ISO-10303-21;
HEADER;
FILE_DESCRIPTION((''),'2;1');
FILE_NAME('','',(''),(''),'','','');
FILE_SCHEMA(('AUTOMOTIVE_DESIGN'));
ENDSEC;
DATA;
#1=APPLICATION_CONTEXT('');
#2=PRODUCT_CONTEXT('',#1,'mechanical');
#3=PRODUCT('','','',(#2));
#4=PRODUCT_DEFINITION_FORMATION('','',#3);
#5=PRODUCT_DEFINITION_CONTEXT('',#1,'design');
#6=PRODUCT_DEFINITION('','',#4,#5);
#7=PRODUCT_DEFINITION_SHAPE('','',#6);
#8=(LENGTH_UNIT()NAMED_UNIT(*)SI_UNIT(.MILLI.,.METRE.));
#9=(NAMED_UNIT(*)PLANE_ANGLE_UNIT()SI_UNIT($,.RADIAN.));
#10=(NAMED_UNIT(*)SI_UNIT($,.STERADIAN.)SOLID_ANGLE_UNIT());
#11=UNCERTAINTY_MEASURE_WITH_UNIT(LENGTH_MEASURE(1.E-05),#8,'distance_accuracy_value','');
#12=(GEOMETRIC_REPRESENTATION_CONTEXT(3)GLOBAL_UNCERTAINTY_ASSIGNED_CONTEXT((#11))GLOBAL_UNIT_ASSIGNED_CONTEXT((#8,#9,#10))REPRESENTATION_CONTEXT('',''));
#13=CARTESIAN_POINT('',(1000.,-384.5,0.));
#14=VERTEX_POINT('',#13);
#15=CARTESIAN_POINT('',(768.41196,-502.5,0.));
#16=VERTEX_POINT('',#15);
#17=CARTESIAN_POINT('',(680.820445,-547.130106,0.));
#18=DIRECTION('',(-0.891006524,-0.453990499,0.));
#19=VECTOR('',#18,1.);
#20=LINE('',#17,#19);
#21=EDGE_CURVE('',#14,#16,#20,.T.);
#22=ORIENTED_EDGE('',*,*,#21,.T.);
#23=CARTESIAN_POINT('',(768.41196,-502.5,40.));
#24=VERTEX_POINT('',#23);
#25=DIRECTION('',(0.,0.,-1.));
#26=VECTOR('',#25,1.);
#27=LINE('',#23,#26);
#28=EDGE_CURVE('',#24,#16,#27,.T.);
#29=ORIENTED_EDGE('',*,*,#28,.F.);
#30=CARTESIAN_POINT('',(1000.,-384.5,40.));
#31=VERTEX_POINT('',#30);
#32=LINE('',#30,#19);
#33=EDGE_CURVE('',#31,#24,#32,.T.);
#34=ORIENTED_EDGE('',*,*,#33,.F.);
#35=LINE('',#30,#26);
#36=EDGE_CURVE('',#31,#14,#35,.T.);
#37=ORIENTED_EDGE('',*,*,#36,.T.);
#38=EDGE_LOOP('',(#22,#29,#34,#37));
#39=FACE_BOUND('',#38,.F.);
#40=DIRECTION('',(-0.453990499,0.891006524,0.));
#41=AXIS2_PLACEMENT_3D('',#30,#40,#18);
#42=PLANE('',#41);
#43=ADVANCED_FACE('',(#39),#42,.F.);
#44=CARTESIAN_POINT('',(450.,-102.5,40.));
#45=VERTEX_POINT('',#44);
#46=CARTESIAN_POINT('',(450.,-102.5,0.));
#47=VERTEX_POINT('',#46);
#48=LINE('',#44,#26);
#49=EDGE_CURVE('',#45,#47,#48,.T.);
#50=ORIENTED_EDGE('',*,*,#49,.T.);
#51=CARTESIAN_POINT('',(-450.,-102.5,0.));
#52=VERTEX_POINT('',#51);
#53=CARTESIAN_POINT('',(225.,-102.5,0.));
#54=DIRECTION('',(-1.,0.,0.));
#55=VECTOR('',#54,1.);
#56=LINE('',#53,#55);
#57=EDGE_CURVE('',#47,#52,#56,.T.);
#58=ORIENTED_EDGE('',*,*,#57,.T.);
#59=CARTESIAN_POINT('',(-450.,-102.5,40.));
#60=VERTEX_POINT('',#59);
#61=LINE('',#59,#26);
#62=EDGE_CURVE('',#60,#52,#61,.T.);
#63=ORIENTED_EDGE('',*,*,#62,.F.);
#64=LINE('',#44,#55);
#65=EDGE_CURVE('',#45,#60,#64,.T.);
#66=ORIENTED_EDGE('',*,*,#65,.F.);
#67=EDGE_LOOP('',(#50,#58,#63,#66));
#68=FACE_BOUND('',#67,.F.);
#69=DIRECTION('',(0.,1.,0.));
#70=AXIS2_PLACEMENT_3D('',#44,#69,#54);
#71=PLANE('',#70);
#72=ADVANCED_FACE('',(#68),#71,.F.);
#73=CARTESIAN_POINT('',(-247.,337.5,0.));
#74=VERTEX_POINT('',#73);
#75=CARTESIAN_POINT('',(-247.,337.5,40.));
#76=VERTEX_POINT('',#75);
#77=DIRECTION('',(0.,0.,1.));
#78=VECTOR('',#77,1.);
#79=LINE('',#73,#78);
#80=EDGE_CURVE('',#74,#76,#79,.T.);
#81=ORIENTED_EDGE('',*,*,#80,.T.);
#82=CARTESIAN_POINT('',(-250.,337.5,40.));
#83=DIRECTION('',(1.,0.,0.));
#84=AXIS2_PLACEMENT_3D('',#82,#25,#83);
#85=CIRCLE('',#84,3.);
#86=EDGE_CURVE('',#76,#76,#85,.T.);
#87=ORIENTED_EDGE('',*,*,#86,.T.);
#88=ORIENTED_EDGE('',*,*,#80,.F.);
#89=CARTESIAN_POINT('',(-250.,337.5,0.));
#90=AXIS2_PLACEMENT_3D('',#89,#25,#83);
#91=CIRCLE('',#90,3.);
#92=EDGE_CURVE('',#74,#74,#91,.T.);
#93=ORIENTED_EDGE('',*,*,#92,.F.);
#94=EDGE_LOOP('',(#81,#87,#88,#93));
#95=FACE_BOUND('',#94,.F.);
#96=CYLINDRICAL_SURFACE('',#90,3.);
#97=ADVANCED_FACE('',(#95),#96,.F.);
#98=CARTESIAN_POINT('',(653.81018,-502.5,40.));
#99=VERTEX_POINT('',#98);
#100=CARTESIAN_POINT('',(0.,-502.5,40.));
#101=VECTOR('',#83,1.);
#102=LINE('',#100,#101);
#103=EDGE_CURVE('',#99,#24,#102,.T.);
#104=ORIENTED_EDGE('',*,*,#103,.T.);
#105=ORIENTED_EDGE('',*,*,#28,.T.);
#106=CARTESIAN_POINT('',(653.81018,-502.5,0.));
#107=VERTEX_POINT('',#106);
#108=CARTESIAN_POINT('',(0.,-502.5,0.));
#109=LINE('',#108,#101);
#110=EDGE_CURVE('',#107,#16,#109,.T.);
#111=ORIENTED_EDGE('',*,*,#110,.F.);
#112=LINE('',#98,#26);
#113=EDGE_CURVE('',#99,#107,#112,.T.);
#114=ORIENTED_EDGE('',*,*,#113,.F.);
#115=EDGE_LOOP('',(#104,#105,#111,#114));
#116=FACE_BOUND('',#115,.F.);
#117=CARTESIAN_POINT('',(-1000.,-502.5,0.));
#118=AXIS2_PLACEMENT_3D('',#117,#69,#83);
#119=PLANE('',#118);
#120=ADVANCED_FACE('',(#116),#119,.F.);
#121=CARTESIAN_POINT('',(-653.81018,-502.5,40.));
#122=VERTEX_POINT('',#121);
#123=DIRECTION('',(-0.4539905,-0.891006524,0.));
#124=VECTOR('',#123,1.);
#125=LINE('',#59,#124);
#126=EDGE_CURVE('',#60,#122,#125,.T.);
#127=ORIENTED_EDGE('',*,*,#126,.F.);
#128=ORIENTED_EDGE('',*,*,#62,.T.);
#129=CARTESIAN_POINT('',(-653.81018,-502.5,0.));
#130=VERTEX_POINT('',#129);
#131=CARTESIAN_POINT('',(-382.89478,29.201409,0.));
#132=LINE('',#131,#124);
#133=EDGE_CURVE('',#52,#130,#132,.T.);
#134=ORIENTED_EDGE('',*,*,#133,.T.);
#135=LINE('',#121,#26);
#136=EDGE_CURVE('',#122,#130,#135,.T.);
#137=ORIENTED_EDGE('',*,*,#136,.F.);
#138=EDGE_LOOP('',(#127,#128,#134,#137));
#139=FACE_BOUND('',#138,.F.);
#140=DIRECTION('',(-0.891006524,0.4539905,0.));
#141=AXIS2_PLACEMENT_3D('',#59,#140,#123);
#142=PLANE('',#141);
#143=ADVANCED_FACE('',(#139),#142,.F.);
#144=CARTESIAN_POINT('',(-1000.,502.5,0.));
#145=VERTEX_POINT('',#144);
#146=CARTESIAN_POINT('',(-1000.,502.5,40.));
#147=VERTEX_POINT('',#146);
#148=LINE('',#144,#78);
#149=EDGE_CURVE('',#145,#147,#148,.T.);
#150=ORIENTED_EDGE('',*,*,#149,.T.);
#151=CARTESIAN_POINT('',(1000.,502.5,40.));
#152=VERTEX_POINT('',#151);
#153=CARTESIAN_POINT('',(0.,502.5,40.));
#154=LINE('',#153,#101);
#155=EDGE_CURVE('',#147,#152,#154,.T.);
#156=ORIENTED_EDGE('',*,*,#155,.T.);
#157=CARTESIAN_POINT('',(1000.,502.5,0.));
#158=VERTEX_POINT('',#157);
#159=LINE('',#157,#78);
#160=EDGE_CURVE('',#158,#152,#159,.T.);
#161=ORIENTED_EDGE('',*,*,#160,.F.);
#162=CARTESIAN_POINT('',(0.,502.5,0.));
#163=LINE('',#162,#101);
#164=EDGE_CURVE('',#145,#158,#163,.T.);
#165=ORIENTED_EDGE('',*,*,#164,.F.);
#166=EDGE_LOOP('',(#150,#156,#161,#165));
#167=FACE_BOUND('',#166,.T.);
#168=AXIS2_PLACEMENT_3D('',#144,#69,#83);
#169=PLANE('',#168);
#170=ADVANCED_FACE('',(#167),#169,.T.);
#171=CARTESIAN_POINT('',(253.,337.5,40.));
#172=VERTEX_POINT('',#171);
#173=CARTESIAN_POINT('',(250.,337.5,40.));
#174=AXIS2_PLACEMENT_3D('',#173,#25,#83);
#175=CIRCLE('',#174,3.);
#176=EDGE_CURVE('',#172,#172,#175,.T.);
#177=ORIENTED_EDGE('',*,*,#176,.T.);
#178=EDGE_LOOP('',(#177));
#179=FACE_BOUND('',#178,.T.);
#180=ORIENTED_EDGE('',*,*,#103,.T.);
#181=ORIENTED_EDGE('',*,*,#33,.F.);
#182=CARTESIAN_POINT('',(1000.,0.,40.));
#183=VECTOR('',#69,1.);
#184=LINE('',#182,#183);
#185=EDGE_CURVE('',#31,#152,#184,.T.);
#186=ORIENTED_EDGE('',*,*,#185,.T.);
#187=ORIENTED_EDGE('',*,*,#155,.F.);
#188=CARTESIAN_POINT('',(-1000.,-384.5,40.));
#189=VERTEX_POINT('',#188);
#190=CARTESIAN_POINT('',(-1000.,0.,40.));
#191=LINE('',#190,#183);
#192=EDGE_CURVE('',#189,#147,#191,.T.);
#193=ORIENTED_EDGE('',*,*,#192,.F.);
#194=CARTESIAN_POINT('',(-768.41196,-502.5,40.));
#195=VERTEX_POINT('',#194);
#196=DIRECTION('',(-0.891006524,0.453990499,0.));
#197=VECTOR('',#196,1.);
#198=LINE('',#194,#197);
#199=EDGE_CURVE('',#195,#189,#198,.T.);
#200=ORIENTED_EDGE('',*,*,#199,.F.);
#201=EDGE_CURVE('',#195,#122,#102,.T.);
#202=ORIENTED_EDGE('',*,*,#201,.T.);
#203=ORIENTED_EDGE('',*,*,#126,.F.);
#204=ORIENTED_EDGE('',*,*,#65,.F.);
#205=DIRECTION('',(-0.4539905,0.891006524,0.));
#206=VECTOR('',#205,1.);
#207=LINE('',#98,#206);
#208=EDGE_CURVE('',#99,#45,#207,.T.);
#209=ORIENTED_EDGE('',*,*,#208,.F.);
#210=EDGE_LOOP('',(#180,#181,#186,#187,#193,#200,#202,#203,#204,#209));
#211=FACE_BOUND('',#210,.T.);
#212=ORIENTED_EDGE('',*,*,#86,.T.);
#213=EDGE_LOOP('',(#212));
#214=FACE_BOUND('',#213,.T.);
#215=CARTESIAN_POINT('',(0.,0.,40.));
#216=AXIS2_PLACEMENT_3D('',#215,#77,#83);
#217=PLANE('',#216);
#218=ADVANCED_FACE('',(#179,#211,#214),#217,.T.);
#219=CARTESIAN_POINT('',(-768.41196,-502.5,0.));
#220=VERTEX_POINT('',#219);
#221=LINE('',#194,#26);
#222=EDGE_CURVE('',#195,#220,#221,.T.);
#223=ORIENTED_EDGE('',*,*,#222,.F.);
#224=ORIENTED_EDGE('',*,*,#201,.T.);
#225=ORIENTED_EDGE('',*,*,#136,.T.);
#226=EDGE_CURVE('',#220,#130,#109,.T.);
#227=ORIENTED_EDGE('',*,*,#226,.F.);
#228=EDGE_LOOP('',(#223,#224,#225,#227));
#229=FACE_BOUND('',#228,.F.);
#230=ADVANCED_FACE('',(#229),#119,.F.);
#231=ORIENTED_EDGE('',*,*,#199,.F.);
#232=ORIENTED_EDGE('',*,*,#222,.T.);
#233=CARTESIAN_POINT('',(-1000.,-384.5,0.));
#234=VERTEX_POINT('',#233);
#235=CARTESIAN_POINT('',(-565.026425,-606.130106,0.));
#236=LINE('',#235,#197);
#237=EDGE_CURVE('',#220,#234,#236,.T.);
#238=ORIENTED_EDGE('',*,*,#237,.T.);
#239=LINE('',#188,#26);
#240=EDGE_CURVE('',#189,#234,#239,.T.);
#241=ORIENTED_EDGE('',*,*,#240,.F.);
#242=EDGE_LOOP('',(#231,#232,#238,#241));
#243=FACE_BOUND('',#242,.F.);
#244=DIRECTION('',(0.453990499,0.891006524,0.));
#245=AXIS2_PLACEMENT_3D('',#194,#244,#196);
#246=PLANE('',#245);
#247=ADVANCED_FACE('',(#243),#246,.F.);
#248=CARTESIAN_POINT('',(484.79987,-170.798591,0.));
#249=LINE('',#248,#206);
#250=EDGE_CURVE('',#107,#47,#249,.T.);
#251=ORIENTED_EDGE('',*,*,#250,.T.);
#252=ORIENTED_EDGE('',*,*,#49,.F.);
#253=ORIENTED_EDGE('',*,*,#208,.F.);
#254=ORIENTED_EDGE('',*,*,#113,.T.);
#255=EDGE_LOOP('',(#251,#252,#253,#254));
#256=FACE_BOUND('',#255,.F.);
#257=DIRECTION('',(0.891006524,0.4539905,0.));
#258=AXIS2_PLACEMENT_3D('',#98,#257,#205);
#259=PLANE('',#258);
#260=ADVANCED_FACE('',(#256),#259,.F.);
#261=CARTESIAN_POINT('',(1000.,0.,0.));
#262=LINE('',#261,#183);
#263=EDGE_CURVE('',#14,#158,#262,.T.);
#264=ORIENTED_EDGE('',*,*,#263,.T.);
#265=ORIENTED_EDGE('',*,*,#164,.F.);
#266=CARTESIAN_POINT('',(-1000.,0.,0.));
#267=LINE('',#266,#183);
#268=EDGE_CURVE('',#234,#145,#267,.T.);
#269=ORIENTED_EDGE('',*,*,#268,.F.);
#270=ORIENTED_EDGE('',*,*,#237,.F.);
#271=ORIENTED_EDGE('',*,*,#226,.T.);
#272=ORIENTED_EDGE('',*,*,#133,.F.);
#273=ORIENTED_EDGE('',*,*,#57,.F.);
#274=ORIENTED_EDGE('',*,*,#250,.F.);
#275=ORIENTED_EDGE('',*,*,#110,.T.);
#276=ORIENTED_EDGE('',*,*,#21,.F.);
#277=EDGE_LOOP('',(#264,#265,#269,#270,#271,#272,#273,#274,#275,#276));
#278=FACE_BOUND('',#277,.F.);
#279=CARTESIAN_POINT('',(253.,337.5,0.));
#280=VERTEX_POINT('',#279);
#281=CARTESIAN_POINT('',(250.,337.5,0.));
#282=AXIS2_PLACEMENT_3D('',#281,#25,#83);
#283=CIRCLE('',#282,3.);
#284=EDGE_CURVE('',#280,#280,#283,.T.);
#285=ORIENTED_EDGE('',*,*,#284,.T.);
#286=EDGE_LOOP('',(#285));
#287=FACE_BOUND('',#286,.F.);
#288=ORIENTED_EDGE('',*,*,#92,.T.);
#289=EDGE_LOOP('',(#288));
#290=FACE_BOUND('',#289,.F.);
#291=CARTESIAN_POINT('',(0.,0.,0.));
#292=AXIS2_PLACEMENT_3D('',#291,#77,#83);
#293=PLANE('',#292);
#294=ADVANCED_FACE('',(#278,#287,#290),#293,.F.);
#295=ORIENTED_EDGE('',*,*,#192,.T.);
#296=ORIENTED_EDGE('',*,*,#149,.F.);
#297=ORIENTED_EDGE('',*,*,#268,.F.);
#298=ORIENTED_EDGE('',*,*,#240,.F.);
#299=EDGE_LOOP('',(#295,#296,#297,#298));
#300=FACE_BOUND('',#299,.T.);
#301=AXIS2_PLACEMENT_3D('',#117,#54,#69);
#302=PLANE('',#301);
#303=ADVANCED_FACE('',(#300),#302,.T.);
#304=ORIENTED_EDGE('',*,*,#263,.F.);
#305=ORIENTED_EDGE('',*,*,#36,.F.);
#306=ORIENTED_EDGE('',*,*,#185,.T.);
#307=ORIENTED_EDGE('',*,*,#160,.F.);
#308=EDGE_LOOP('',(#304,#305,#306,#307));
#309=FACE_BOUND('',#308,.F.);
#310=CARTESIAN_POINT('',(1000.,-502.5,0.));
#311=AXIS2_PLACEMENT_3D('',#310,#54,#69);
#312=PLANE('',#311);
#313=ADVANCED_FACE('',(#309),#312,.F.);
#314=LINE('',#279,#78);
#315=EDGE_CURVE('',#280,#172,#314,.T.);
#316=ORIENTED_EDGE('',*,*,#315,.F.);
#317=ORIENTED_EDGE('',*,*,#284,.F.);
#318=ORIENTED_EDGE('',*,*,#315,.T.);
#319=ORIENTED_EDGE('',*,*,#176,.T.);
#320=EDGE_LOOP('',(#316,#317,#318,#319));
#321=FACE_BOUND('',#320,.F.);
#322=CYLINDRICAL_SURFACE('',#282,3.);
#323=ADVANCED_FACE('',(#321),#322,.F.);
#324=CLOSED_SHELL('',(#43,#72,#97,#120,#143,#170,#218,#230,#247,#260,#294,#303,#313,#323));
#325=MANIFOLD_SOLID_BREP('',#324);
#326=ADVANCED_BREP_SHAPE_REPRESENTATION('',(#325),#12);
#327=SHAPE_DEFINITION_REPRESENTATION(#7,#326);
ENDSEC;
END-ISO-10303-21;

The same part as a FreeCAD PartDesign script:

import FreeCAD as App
import Part
import Sketcher

V = App.Vector
Q = App.Units.Quantity

doc = App.newDocument("Part")
body = doc.addObject("PartDesign::Body", "Body")

# Sketch on XY plane
sketch1 = body.newObject("Sketcher::SketchObject", "Sketch")
sketch1.AttachmentSupport = (doc.getObject("XY_Plane"), [""])
sketch1.MapMode = "FlatFace"
sketch1.addGeometry([
    Part.LineSegment(V(-1000, 502, 0), V(-1000, -502, 0)),
    Part.LineSegment(V(-1000, -502, 0), V(1000, -502, 0)),
    Part.LineSegment(V(1000, -502, 0), V(1000, 502, 0)),
    Part.LineSegment(V(1000, 502, 0), V(-1000, 502, 0)),
], False)
sketch1.addConstraint([
    Sketcher.Constraint("Coincident", 0, 2, 1, 1),
    Sketcher.Constraint("Coincident", 1, 2, 2, 1),
    Sketcher.Constraint("Coincident", 2, 2, 3, 1),
    Sketcher.Constraint("Coincident", 3, 2, 0, 1),
    Sketcher.Constraint("Vertical", 0),
    Sketcher.Constraint("Horizontal", 1),
    Sketcher.Constraint("Vertical", 2),
    Sketcher.Constraint("Horizontal", 3),
    Sketcher.Constraint("Symmetric", 0, 2, 2, 2, -1, 1),
    Sketcher.Constraint("DistanceX", 1, 1, 1, 2, 2000.0),
    Sketcher.Constraint("DistanceY", 0, 2, 0, 1, 1005.0),
])
pad1 = body.newObject("PartDesign::Pad", "Pad")
pad1.Profile = sketch1
pad1.Length = 40

# Sketch on XY plane
sketch2 = body.newObject("Sketcher::SketchObject", "Sketch001")
sketch2.AttachmentSupport = (doc.getObject("XY_Plane"), [""])
sketch2.MapMode = "FlatFace"
sketch2.AttachmentOffset = App.Placement(V(0, 0, 40), App.Rotation())
sketch2.addGeometry([
    Part.LineSegment(V(-450, -102, 0), V(-654, -502, 0)),
    Part.LineSegment(V(-654, -502, 0), V(654, -502, 0)),
    Part.LineSegment(V(654, -502, 0), V(450, -102, 0)),
    Part.LineSegment(V(450, -102, 0), V(-450, -102, 0)),
], False)
sketch2.addConstraint([
    Sketcher.Constraint("Coincident", 0, 2, 1, 1),
    Sketcher.Constraint("Coincident", 1, 2, 2, 1),
    Sketcher.Constraint("Coincident", 2, 2, 3, 1),
    Sketcher.Constraint("Coincident", 3, 2, 0, 1),
    Sketcher.Constraint("Horizontal", 1),
    Sketcher.Constraint("Horizontal", 3),
    Sketcher.Constraint("Equal", 0, 2),
    Sketcher.Constraint("DistanceX", 3, 2, 3, 1, 900.0),
    Sketcher.Constraint("Angle", 0, Q("-117 deg")),
    Sketcher.Constraint("DistanceX", -1, 1, 2, 2, 450.0),
    Sketcher.Constraint("DistanceY", 1, 2, 2, 2, 400.0),
    Sketcher.Constraint("DistanceY", 0, 2, -1, 1, 502.5),
])
pocket1 = body.newObject("PartDesign::Pocket", "Pocket")
pocket1.Profile = sketch2
pocket1.Type = "ThroughAll"

# Sketch on XY plane
sketch3 = body.newObject("Sketcher::SketchObject", "Sketch002")
sketch3.AttachmentSupport = (doc.getObject("XY_Plane"), [""])
sketch3.MapMode = "FlatFace"
sketch3.addGeometry([
    Part.Circle(V(-250, 337.5, 0), V(0, 0, 1), 3),
    Part.Circle(V(250, 337.5, 0), V(0, 0, 1), 3),
], False)
sketch3.addConstraint([
    Sketcher.Constraint("Equal", 0, 1),
    Sketcher.Constraint("Symmetric", 0, 3, 1, 3, -2),
    Sketcher.Constraint("Diameter", 0, 6.0),
    Sketcher.Constraint("DistanceX", 0, 3, -1, 1, 250.0),
    Sketcher.Constraint("DistanceY", -1, 1, 0, 3, 337.5),
])
pocket2 = body.newObject("PartDesign::Pocket", "Pocket001")
pocket2.Profile = sketch3
pocket2.Type = "ThroughAll"
pocket2.Reversed = True

# Sketch on XY plane
sketch4 = body.newObject("Sketcher::SketchObject", "Sketch003")
sketch4.AttachmentSupport = (doc.getObject("XY_Plane"), [""])
sketch4.MapMode = "FlatFace"
sketch4.AttachmentOffset = App.Placement(V(0, 0, 40), App.Rotation())
sketch4.addGeometry([
    Part.LineSegment(V(-768, -502, 0), V(-1000, -384, 0)),  # 0
    Part.LineSegment(V(-1000, -384, 0), V(-1000, -502, 0)),  # 1
    Part.LineSegment(V(-1000, -502, 0), V(-768, -502, 0)),  # 2
    Part.LineSegment(V(1000, -502, 0), V(1000, -384, 0)),  # 3
    Part.LineSegment(V(1000, -384, 0), V(768, -502, 0)),  # 4
    Part.LineSegment(V(768, -502, 0), V(1000, -502, 0)),  # 5
], False)
sketch4.addConstraint([
    Sketcher.Constraint("Coincident", 0, 2, 1, 1),
    Sketcher.Constraint("Coincident", 1, 2, 2, 1),
    Sketcher.Constraint("Coincident", 2, 2, 0, 1),
    Sketcher.Constraint("Coincident", 3, 2, 4, 1),
    Sketcher.Constraint("Coincident", 4, 2, 5, 1),
    Sketcher.Constraint("Coincident", 5, 2, 3, 1),
    Sketcher.Constraint("Vertical", 1),
    Sketcher.Constraint("Horizontal", 2),
    Sketcher.Constraint("Vertical", 3),
    Sketcher.Constraint("Horizontal", 5),
    Sketcher.Constraint("Symmetric", 0, 2, 3, 2, -2),
    Sketcher.Constraint("Symmetric", 2, 2, 4, 2, -2),
    Sketcher.Constraint("DistanceY", 1, 2, 1, 1, 118.0),
    Sketcher.Constraint("Angle", 0, Q("153 deg")),
    Sketcher.Constraint("DistanceX", 0, 2, -1, 1, 1000.0),
    Sketcher.Constraint("DistanceY", 0, 2, -1, 1, 384.5),
])
pocket3 = body.newObject("PartDesign::Pocket", "Pocket002")
pocket3.Profile = sketch4
pocket3.Type = "ThroughAll"

doc.recompute()
